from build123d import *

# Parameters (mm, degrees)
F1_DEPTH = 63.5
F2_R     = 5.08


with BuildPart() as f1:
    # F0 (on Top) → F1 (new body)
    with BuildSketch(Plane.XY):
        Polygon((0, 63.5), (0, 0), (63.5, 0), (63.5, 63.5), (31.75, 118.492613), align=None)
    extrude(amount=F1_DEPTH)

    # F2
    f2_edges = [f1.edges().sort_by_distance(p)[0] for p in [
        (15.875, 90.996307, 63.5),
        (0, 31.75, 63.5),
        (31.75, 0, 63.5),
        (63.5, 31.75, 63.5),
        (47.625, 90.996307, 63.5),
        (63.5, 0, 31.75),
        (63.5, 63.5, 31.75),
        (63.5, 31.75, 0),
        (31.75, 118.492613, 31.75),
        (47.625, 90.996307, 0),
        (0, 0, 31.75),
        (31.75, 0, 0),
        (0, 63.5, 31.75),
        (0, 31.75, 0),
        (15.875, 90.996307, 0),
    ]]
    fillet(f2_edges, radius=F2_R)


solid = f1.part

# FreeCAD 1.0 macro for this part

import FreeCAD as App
import Part
import Sketcher

V = App.Vector
Q = App.Units.Quantity


def add_polygon(sketch, points):
    """Adds a closed chain of lines whose ends are joined by coincident constraints."""
    first, n = sketch.GeometryCount, len(points)
    for a, b in zip(points, points[1:] + points[:1]):
        sketch.addGeometry(Part.LineSegment(App.Vector(*a, 0), App.Vector(*b, 0)), False)
    for i in range(n):
        sketch.addConstraint(Sketcher.Constraint("Coincident", first + i, 2, first + (i + 1) % n, 1))

doc = App.newDocument("Part")
body = doc.addObject("PartDesign::Body", "Body")

# Sketch on XY plane
sketch1 = doc.addObject("Sketcher::SketchObject", "Sketch")
body.addObject(sketch1)
sketch1.AttachmentSupport = (doc.XY_Plane, [""])
sketch1.MapMode = "FlatFace"
add_polygon(sketch1, [(0, 64), (0, 0), (64, 0), (64, 64), (32, 118)])  # lines 0-4
sketch1.addConstraint([
    Sketcher.Constraint("Vertical", 0),
    Sketcher.Constraint("Horizontal", 1),
    Sketcher.Constraint("Vertical", 2),
    Sketcher.Constraint("Coincident", 0, 2, -1, 1),
    Sketcher.Constraint("Horizontal", 2, 2, 4, 2),
    Sketcher.Constraint("Equal", 1, 0),
    Sketcher.Constraint("Equal", 3, 4),
    Sketcher.Constraint("DistanceX", 1, 1, 1, 2, Q("2.5 in")),
    Sketcher.Constraint("Angle", 3, Q("120 deg")),
])
pad1 = doc.addObject("PartDesign::Pad", "Pad")
body.addObject(pad1)
pad1.Profile = sketch1
pad1.Length = Q("2.5 in")
doc.recompute()

fillet = doc.addObject("PartDesign::Fillet", "Fillet")
body.addObject(fillet)
fillet.Base = (pad1, ["Edge1"])
fillet.UseAllEdges = True
fillet.Radius = Q("0.2 in")

doc.recompute()
